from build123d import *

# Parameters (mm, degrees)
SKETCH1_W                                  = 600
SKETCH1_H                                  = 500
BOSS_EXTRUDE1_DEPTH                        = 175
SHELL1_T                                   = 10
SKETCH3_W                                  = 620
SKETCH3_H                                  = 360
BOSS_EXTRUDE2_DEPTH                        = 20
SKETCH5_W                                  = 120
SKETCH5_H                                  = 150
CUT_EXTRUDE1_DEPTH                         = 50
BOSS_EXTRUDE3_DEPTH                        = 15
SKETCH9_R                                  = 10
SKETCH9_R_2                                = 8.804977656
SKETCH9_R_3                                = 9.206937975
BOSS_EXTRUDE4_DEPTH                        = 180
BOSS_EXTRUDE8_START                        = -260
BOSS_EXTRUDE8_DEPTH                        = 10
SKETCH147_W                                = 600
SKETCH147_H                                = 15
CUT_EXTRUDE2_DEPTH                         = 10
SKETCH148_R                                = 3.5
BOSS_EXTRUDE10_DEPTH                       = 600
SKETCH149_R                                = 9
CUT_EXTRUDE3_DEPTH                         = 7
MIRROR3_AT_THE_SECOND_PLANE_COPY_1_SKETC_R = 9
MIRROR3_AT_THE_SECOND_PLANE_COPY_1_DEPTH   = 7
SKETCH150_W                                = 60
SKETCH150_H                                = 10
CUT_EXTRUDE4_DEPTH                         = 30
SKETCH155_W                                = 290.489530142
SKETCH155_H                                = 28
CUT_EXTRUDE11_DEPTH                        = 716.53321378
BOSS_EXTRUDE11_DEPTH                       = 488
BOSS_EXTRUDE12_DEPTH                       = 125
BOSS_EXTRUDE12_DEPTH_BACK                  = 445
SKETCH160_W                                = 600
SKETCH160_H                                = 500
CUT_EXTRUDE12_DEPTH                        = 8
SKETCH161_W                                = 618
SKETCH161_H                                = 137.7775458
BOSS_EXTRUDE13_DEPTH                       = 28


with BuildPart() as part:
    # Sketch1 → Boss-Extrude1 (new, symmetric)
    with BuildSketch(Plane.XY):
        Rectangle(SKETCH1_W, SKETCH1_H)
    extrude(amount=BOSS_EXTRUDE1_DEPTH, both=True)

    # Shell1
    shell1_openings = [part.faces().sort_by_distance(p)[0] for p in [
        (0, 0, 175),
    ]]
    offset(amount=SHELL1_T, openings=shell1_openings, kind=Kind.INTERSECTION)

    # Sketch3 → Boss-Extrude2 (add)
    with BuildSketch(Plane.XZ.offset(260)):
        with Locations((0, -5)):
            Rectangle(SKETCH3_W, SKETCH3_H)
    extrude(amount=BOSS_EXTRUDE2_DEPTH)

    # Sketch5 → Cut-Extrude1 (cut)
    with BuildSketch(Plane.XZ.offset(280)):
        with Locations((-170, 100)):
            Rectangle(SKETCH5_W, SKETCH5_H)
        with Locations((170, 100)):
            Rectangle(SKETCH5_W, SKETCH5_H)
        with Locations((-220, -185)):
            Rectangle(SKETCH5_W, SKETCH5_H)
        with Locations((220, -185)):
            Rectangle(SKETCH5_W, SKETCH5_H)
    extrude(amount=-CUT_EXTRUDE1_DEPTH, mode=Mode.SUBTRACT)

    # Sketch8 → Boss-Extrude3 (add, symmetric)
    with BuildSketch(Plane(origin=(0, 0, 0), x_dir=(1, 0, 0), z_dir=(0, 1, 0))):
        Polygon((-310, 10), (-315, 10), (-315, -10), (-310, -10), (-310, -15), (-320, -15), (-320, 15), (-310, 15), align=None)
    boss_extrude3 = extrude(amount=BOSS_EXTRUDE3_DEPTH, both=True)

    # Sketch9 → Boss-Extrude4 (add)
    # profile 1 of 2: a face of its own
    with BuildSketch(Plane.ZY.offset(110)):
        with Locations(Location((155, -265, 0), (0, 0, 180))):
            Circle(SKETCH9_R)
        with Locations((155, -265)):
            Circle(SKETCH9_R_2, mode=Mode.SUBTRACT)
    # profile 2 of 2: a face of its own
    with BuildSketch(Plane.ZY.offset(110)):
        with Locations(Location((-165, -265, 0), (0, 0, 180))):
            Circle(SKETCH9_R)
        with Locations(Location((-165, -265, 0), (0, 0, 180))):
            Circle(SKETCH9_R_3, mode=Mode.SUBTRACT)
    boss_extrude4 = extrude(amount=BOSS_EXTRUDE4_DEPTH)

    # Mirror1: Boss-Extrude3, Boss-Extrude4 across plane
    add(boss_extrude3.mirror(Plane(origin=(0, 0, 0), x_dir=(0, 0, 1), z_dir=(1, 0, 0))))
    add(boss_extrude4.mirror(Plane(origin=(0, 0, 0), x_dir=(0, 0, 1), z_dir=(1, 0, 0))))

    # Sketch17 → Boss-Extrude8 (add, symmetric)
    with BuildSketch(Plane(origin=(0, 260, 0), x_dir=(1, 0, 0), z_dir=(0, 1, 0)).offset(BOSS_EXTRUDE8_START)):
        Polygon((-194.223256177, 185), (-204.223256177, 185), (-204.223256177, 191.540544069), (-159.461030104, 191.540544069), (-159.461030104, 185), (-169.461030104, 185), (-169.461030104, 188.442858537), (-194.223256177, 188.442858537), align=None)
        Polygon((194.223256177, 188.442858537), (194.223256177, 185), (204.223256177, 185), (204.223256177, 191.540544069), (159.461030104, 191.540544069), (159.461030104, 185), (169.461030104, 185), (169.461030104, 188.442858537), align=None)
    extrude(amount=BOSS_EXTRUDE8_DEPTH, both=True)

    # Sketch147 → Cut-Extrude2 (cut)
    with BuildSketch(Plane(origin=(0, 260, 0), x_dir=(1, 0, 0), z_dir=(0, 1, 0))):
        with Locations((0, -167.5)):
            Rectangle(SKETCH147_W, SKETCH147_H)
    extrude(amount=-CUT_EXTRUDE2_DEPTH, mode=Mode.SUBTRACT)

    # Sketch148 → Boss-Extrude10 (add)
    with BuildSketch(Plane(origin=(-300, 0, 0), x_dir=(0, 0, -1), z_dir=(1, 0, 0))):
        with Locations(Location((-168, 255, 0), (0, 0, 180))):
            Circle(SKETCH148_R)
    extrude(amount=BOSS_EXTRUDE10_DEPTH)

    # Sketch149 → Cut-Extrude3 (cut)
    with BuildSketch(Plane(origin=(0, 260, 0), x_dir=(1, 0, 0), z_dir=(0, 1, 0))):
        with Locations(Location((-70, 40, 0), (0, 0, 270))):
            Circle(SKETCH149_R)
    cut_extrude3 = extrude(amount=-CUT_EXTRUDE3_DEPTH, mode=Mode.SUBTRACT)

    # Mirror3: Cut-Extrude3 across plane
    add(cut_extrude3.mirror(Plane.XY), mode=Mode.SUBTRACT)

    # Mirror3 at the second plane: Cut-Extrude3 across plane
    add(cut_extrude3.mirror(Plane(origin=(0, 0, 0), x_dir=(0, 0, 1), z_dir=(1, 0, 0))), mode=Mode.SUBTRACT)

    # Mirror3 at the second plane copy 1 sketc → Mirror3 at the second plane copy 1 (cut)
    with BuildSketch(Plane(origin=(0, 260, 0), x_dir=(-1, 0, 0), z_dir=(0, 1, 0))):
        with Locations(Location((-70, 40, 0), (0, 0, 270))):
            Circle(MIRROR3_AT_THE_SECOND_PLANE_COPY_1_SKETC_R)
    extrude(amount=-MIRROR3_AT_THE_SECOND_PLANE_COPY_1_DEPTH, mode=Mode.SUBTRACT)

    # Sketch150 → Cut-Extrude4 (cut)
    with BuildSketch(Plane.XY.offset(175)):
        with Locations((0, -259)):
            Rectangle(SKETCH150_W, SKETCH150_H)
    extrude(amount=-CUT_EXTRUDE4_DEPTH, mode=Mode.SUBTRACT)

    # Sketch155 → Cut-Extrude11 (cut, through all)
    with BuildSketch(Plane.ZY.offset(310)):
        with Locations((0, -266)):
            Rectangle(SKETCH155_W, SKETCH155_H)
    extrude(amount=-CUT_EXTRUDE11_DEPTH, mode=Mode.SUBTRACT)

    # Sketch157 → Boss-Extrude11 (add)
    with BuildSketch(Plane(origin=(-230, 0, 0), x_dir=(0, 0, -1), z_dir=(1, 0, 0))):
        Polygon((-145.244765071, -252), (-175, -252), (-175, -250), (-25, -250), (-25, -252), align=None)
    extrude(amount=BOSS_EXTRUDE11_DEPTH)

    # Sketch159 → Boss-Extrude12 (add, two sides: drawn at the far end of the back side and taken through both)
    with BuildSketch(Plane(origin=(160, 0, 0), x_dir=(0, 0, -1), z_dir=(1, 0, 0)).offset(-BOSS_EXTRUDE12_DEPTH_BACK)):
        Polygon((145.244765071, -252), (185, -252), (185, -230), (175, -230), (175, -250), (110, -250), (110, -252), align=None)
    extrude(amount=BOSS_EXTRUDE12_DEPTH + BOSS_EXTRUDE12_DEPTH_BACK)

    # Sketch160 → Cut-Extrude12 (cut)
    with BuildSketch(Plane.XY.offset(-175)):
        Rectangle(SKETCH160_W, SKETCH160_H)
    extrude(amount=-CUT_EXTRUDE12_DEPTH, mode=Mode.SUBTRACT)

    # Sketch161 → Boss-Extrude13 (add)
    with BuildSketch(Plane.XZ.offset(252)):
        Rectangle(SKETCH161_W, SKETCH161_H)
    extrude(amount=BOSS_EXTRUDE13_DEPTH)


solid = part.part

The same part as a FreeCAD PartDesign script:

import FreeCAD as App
import Part
import Sketcher


def faces_at(feature, points):
    """Names of the faces that lie closest to the given points."""
    faces = feature.Shape.Faces
    near = lambda p: min(range(len(faces)), key=lambda i: faces[i].distToShape(Part.Vertex(*p))[0])
    return sorted({f"Face{near(p) + 1}" for p in points})

doc = App.newDocument("Part")
params = doc.addObject("Spreadsheet::Sheet", "Params")
for row, (alias, value) in enumerate([
    ("sketch1_width", "600 mm"),
    ("sketch1_height", "500 mm"),
    ("pad1_length", "350 mm"),
    ("thickness_wall", "10 mm"),
    ("sketch2_width", "620 mm"),
    ("sketch2_height", "360 mm"),
    ("pad2_length", "20 mm"),
    ("sketch3_width", "120 mm"),
    ("sketch3_height", "150 mm"),
    ("pocket1_length", "50 mm"),
    ("sketch4_width", "5 mm"),
    ("sketch4_width2", "10 mm"),
    ("sketch4_height", "30 mm"),
    ("pad3_length", "30 mm"),
    ("sketch5_diameter", "20 mm"),
    ("pad4_length", "180 mm"),
    ("sketch6_width", "10 mm"),
    ("pad5_length", "20 mm"),
    ("sketch7_width", "600 mm"),
    ("sketch7_height", "15 mm"),
    ("pocket2_length", "10 mm"),
    ("sketch8_diameter", "7 mm"),
    ("pad6_length", "600 mm"),
    ("sketch9_diameter", "18 mm"),
    ("pocket3_length", "7 mm"),
    ("sketch10_diameter", "18 mm"),
    ("pocket4_length", "7 mm"),
    ("sketch11_width", "60 mm"),
    ("sketch11_height", "10 mm"),
    ("pocket5_length", "30 mm"),
    ("sketch12_width", "28 mm"),
    ("sketch13_width", "2 mm"),
    ("sketch13_height", "150 mm"),
    ("pad7_length", "488 mm"),
    ("sketch14_width", "22 mm"),
    ("sketch14_width2", "20 mm"),
    ("sketch14_height", "10 mm"),
    ("sketch14_height2", "65 mm"),
    ("pad8_length", "125 mm"),
    ("pad8_length2", "445 mm"),
    ("sketch15_width", "600 mm"),
    ("sketch15_height", "500 mm"),
    ("pocket7_length", "8 mm"),
    ("sketch16_width", "618 mm"),
    ("pad9_length", "28 mm"),
], start=1):
    params.set(f"A{row}", alias)
    params.set(f"B{row}", "=" + value)
    params.setAlias(f"B{row}", alias)

body = doc.addObject("PartDesign::Body", "Body")

# Sketch on XY plane
sketch1 = doc.addObject("Sketcher::SketchObject", "Sketch")
body.addObject(sketch1)
sketch1.AttachmentSupport = (doc.XY_Plane, [""])
sketch1.MapMode = "FlatFace"
sketch1.addGeometry(Part.LineSegment(App.Vector(-300, 250, 0), App.Vector(-300, -250, 0)), False)
sketch1.addGeometry(Part.LineSegment(App.Vector(-300, -250, 0), App.Vector(300, -250, 0)), False)
sketch1.addGeometry(Part.LineSegment(App.Vector(300, -250, 0), App.Vector(300, 250, 0)), False)
sketch1.addGeometry(Part.LineSegment(App.Vector(300, 250, 0), App.Vector(-300, 250, 0)), False)
sketch1.addConstraint(Sketcher.Constraint("Coincident", 0, 2, 1, 1))
sketch1.addConstraint(Sketcher.Constraint("Coincident", 1, 2, 2, 1))
sketch1.addConstraint(Sketcher.Constraint("Coincident", 2, 2, 3, 1))
sketch1.addConstraint(Sketcher.Constraint("Coincident", 3, 2, 0, 1))
sketch1.addConstraint(Sketcher.Constraint("Vertical", 0))
sketch1.addConstraint(Sketcher.Constraint("Horizontal", 1))
sketch1.addConstraint(Sketcher.Constraint("Vertical", 2))
sketch1.addConstraint(Sketcher.Constraint("Horizontal", 3))
sketch1.addConstraint(Sketcher.Constraint("Symmetric", 0, 2, 2, 2, -1, 1))
sketch1.addConstraint(Sketcher.Constraint("DistanceX", 1, 1, 1, 2, 600.0))
sketch1.addConstraint(Sketcher.Constraint("DistanceY", 0, 2, 0, 1, 500.0))
sketch1.setExpression("Constraints[9]", "Params.sketch1_width")
sketch1.setExpression("Constraints[10]", "Params.sketch1_height")
pad1 = doc.addObject("PartDesign::Pad", "Pad")
body.addObject(pad1)
pad1.Profile = sketch1
pad1.setExpression("Length", "Params.pad1_length")
pad1.Midplane = True
doc.recompute()

thickness = doc.addObject("PartDesign::Thickness", "Thickness")
body.addObject(thickness)
thickness.Base = (pad1, faces_at(pad1, [(0, 0, 175)]))
thickness.setExpression("Value", "Params.thickness_wall")
thickness.Reversed = False
thickness.Join = "Intersection"

# Sketch on XZ plane
sketch2 = doc.addObject("Sketcher::SketchObject", "Sketch001")
body.addObject(sketch2)
sketch2.AttachmentSupport = (doc.XZ_Plane, [""])
sketch2.MapMode = "FlatFace"
sketch2.AttachmentOffset = App.Placement(App.Vector(0, 0, 260), App.Rotation())
sketch2.addGeometry(Part.LineSegment(App.Vector(-310, 175, 0), App.Vector(-310, -185, 0)), False)
sketch2.addGeometry(Part.LineSegment(App.Vector(-310, -185, 0), App.Vector(310, -185, 0)), False)
sketch2.addGeometry(Part.LineSegment(App.Vector(310, -185, 0), App.Vector(310, 175, 0)), False)
sketch2.addGeometry(Part.LineSegment(App.Vector(310, 175, 0), App.Vector(-310, 175, 0)), False)
sketch2.addConstraint(Sketcher.Constraint("Coincident", 0, 2, 1, 1))
sketch2.addConstraint(Sketcher.Constraint("Coincident", 1, 2, 2, 1))
sketch2.addConstraint(Sketcher.Constraint("Coincident", 2, 2, 3, 1))
sketch2.addConstraint(Sketcher.Constraint("Coincident", 3, 2, 0, 1))
sketch2.addConstraint(Sketcher.Constraint("Vertical", 0))
sketch2.addConstraint(Sketcher.Constraint("Horizontal", 1))
sketch2.addConstraint(Sketcher.Constraint("Vertical", 2))
sketch2.addConstraint(Sketcher.Constraint("Horizontal", 3))
sketch2.addConstraint(Sketcher.Constraint("DistanceX", 1, 1, 1, 2, 620.0))
sketch2.addConstraint(Sketcher.Constraint("DistanceY", 0, 2, 0, 1, 360.0))
sketch2.addConstraint(Sketcher.Constraint("DistanceX", 0, 2, -1, 1, 310.0))
sketch2.addConstraint(Sketcher.Constraint("DistanceY", 0, 2, -1, 1, 185.0))
sketch2.setExpression("Constraints[8]", "Params.sketch2_width")
sketch2.setExpression("Constraints[9]", "Params.sketch2_height")
pad2 = doc.addObject("PartDesign::Pad", "Pad001")
body.addObject(pad2)
pad2.Profile = sketch2
pad2.setExpression("Length", "Params.pad2_length")

# Sketch on XZ plane
sketch3 = doc.addObject("Sketcher::SketchObject", "Sketch002")
body.addObject(sketch3)
sketch3.AttachmentSupport = (doc.XZ_Plane, [""])
sketch3.MapMode = "FlatFace"
sketch3.AttachmentOffset = App.Placement(App.Vector(0, 0, 280), App.Rotation())
sketch3.addGeometry(Part.LineSegment(App.Vector(-230, 175, 0), App.Vector(-230, 25, 0)), False)
sketch3.addGeometry(Part.LineSegment(App.Vector(-230, 25, 0), App.Vector(-110, 25, 0)), False)
sketch3.addGeometry(Part.LineSegment(App.Vector(-110, 25, 0), App.Vector(-110, 175, 0)), False)
sketch3.addGeometry(Part.LineSegment(App.Vector(-110, 175, 0), App.Vector(-230, 175, 0)), False)
sketch3.addGeometry(Part.LineSegment(App.Vector(110, 175, 0), App.Vector(110, 25, 0)), False)
sketch3.addGeometry(Part.LineSegment(App.Vector(110, 25, 0), App.Vector(230, 25, 0)), False)
sketch3.addGeometry(Part.LineSegment(App.Vector(230, 25, 0), App.Vector(230, 175, 0)), False)
sketch3.addGeometry(Part.LineSegment(App.Vector(230, 175, 0), App.Vector(110, 175, 0)), False)
sketch3.addGeometry(Part.LineSegment(App.Vector(-280, -110, 0), App.Vector(-280, -260, 0)), False)
sketch3.addGeometry(Part.LineSegment(App.Vector(-280, -260, 0), App.Vector(-160, -260, 0)), False)
sketch3.addGeometry(Part.LineSegment(App.Vector(-160, -260, 0), App.Vector(-160, -110, 0)), False)
sketch3.addGeometry(Part.LineSegment(App.Vector(-160, -110, 0), App.Vector(-280, -110, 0)), False)
sketch3.addGeometry(Part.LineSegment(App.Vector(160, -110, 0), App.Vector(160, -260, 0)), False)
sketch3.addGeometry(Part.LineSegment(App.Vector(160, -260, 0), App.Vector(280, -260, 0)), False)
sketch3.addGeometry(Part.LineSegment(App.Vector(280, -260, 0), App.Vector(280, -110, 0)), False)
sketch3.addGeometry(Part.LineSegment(App.Vector(280, -110, 0), App.Vector(160, -110, 0)), False)
sketch3.addConstraint(Sketcher.Constraint("Coincident", 0, 2, 1, 1))
sketch3.addConstraint(Sketcher.Constraint("Coincident", 1, 2, 2, 1))
sketch3.addConstraint(Sketcher.Constraint("Coincident", 2, 2, 3, 1))
sketch3.addConstraint(Sketcher.Constraint("Coincident", 3, 2, 0, 1))
sketch3.addConstraint(Sketcher.Constraint("Coincident", 4, 2, 5, 1))
sketch3.addConstraint(Sketcher.Constraint("Coincident", 5, 2, 6, 1))
sketch3.addConstraint(Sketcher.Constraint("Coincident", 6, 2, 7, 1))
sketch3.addConstraint(Sketcher.Constraint("Coincident", 7, 2, 4, 1))
sketch3.addConstraint(Sketcher.Constraint("Coincident", 8, 2, 9, 1))
sketch3.addConstraint(Sketcher.Constraint("Coincident", 9, 2, 10, 1))
sketch3.addConstraint(Sketcher.Constraint("Coincident", 10, 2, 11, 1))
sketch3.addConstraint(Sketcher.Constraint("Coincident", 11, 2, 8, 1))
sketch3.addConstraint(Sketcher.Constraint("Coincident", 12, 2, 13, 1))
sketch3.addConstraint(Sketcher.Constraint("Coincident", 13, 2, 14, 1))
sketch3.addConstraint(Sketcher.Constraint("Coincident", 14, 2, 15, 1))
sketch3.addConstraint(Sketcher.Constraint("Coincident", 15, 2, 12, 1))
sketch3.addConstraint(Sketcher.Constraint("Vertical", 0))
sketch3.addConstraint(Sketcher.Constraint("Horizontal", 1))
sketch3.addConstraint(Sketcher.Constraint("Vertical", 2))
sketch3.addConstraint(Sketcher.Constraint("Horizontal", 3))
sketch3.addConstraint(Sketcher.Constraint("Vertical", 4))
sketch3.addConstraint(Sketcher.Constraint("Horizontal", 5))
sketch3.addConstraint(Sketcher.Constraint("Vertical", 6))
sketch3.addConstraint(Sketcher.Constraint("Horizontal", 7))
sketch3.addConstraint(Sketcher.Constraint("Vertical", 8))
sketch3.addConstraint(Sketcher.Constraint("Horizontal", 9))
sketch3.addConstraint(Sketcher.Constraint("Vertical", 10))
sketch3.addConstraint(Sketcher.Constraint("Horizontal", 11))
sketch3.addConstraint(Sketcher.Constraint("Vertical", 12))
sketch3.addConstraint(Sketcher.Constraint("Horizontal", 13))
sketch3.addConstraint(Sketcher.Constraint("Vertical", 14))
sketch3.addConstraint(Sketcher.Constraint("Horizontal", 15))
sketch3.addConstraint(Sketcher.Constraint("Symmetric", 1, 2, 4, 2, -2))
sketch3.addConstraint(Sketcher.Constraint("Symmetric", 3, 2, 6, 2, -2))
sketch3.addConstraint(Sketcher.Constraint("Symmetric", 9, 2, 12, 2, -2))
sketch3.addConstraint(Sketcher.Constraint("Symmetric", 11, 2, 14, 2, -2))
sketch3.addConstraint(Sketcher.Constraint("Equal", 7, 9))
sketch3.addConstraint(Sketcher.Constraint("Equal", 6, 8))
sketch3.addConstraint(Sketcher.Constraint("DistanceX", 1, 1, 1, 2, 120.0))
sketch3.addConstraint(Sketcher.Constraint("DistanceY", 0, 2, 0, 1, 150.0))
sketch3.addConstraint(Sketcher.Constraint("DistanceX", 0, 2, -1, 1, 230.0))
sketch3.addConstraint(Sketcher.Constraint("DistanceY", -1, 1, 0, 2, 25.0))
sketch3.addConstraint(Sketcher.Constraint("DistanceX", 8, 2, -1, 1, 280.0))
sketch3.addConstraint(Sketcher.Constraint("DistanceY", 8, 2, -1, 1, 260.0))
sketch3.setExpression("Constraints[38]", "Params.sketch3_width")
sketch3.setExpression("Constraints[39]", "Params.sketch3_height")
pocket1 = doc.addObject("PartDesign::Pocket", "Pocket")
body.addObject(pocket1)
pocket1.Profile = sketch3
pocket1.setExpression("Length", "Params.pocket1_length")

# Sketch on XZ plane
sketch4 = doc.addObject("Sketcher::SketchObject", "Sketch003")
body.addObject(sketch4)
sketch4.AttachmentSupport = (doc.XZ_Plane, [""])
sketch4.MapMode = "FlatFace"
sketch4.addGeometry(Part.LineSegment(App.Vector(-315, -10, 0), App.Vector(-310, -10, 0)), False)
sketch4.addGeometry(Part.LineSegment(App.Vector(-310, -10, 0), App.Vector(-310, -15, 0)), False)
sketch4.addGeometry(Part.LineSegment(App.Vector(-310, -15, 0), App.Vector(-320, -15, 0)), False)
sketch4.addGeometry(Part.LineSegment(App.Vector(-320, -15, 0), App.Vector(-320, 15, 0)), False)
sketch4.addGeometry(Part.LineSegment(App.Vector(-320, 15, 0), App.Vector(-310, 15, 0)), False)
sketch4.addGeometry(Part.LineSegment(App.Vector(-310, 15, 0), App.Vector(-310, 10, 0)), False)
sketch4.addGeometry(Part.LineSegment(App.Vector(-310, 10, 0), App.Vector(-315, 10, 0)), False)
sketch4.addGeometry(Part.LineSegment(App.Vector(-315, 10, 0), App.Vector(-315, -10, 0)), False)
sketch4.addConstraint(Sketcher.Constraint("Coincident", 0, 2, 1, 1))
sketch4.addConstraint(Sketcher.Constraint("Coincident", 1, 2, 2, 1))
sketch4.addConstraint(Sketcher.Constraint("Coincident", 2, 2, 3, 1))
sketch4.addConstraint(Sketcher.Constraint("Coincident", 3, 2, 4, 1))
sketch4.addConstraint(Sketcher.Constraint("Coincident", 4, 2, 5, 1))
sketch4.addConstraint(Sketcher.Constraint("Coincident", 5, 2, 6, 1))
sketch4.addConstraint(Sketcher.Constraint("Coincident", 6, 2, 7, 1))
sketch4.addConstraint(Sketcher.Constraint("Coincident", 7, 2, 0, 1))
sketch4.addConstraint(Sketcher.Constraint("Horizontal", 0))
sketch4.addConstraint(Sketcher.Constraint("Vertical", 1))
sketch4.addConstraint(Sketcher.Constraint("Horizontal", 2))
sketch4.addConstraint(Sketcher.Constraint("Vertical", 3))
sketch4.addConstraint(Sketcher.Constraint("Horizontal", 4))
sketch4.addConstraint(Sketcher.Constraint("Vertical", 5))
sketch4.addConstraint(Sketcher.Constraint("Horizontal", 6))
sketch4.addConstraint(Sketcher.Constraint("Vertical", 7))
sketch4.addConstraint(Sketcher.Constraint("Symmetric", 1, 2, 4, 2, -1))
sketch4.addConstraint(Sketcher.Constraint("Equal", 6, 1))
sketch4.addConstraint(Sketcher.Constraint("Equal", 1, 5))
sketch4.addConstraint(Sketcher.Constraint("DistanceX", 0, 1, 0, 2, 5.0))
sketch4.addConstraint(Sketcher.Constraint("DistanceX", 2, 2, 2, 1, 10.0))
sketch4.addConstraint(Sketcher.Constraint("DistanceY", 3, 1, 3, 2, 30.0))
sketch4.addConstraint(Sketcher.Constraint("DistanceX", 0, 2, -1, 1, 310.0))
sketch4.setExpression("Constraints[19]", "Params.sketch4_width")
sketch4.setExpression("Constraints[20]", "Params.sketch4_width2")
sketch4.setExpression("Constraints[21]", "Params.sketch4_height")
pad3 = doc.addObject("PartDesign::Pad", "Pad002")
body.addObject(pad3)
pad3.Profile = sketch4
pad3.setExpression("Length", "Params.pad3_length")
pad3.Midplane = True

# Sketch on YZ plane
sketch5 = doc.addObject("Sketcher::SketchObject", "Sketch004")
body.addObject(sketch5)
sketch5.AttachmentSupport = (doc.YZ_Plane, [""])
sketch5.MapMode = "FlatFace"
sketch5.AttachmentOffset = App.Placement(App.Vector(0, 0, -110), App.Rotation())
sketch5.addGeometry(Part.Circle(App.Vector(-265, 155, 0), App.Vector(0, 0, 1), 10), False)
sketch5.addGeometry(Part.Circle(App.Vector(-265, 155, 0), App.Vector(0, 0, 1), 9), False)
sketch5.addGeometry(Part.Circle(App.Vector(-265, -165, 0), App.Vector(0, 0, 1), 10), False)
sketch5.addGeometry(Part.Circle(App.Vector(-265, -165, 0), App.Vector(0, 0, 1), 9), False)
sketch5.addConstraint(Sketcher.Constraint("Coincident", 1, 3, 0, 3))
sketch5.addConstraint(Sketcher.Constraint("Coincident", 3, 3, 2, 3))
sketch5.addConstraint(Sketcher.Constraint("Equal", 0, 2))
sketch5.addConstraint(Sketcher.Constraint("Vertical", 1, 3, 2, 3))
sketch5.addConstraint(Sketcher.Constraint("Diameter", 0, 20.0))
sketch5.addConstraint(Sketcher.Constraint("DistanceX", 0, 3, -1, 1, 265.0))
sketch5.addConstraint(Sketcher.Constraint("DistanceY", -1, 1, 0, 3, 155.0))
sketch5.addConstraint(Sketcher.Constraint("DistanceY", 2, 3, -1, 1, 165.0))
sketch5.addConstraint(Sketcher.Constraint("Diameter", 1, 17.609955))
sketch5.addConstraint(Sketcher.Constraint("Diameter", 3, 18.413876))
sketch5.setExpression("Constraints[4]", "Params.sketch5_diameter")
pad4 = doc.addObject("PartDesign::Pad", "Pad003")
body.addObject(pad4)
pad4.Profile = sketch5
pad4.setExpression("Length", "Params.pad4_length")
pad4.Reversed = True
doc.recompute()

mirrored = doc.addObject("PartDesign::Mirrored", "Mirrored")
body.addObject(mirrored)
mirrored.Originals = [pad3, pad4]
mirrored.MirrorPlane = (doc.YZ_Plane, [""])
body.Tip = mirrored

# Sketch on XZ plane
sketch6 = doc.addObject("Sketcher::SketchObject", "Sketch005")
body.addObject(sketch6)
sketch6.AttachmentSupport = (doc.XZ_Plane, [""])
sketch6.MapMode = "FlatFace"
sketch6.addGeometry(Part.LineSegment(App.Vector(-204.2, -185, 0), App.Vector(-194.2, -185, 0)), False)
sketch6.addGeometry(Part.LineSegment(App.Vector(-194.2, -185, 0), App.Vector(-194.2, -188.4, 0)), False)
sketch6.addGeometry(Part.LineSegment(App.Vector(-194.2, -188.4, 0), App.Vector(-169.5, -188.4, 0)), False)
sketch6.addGeometry(Part.LineSegment(App.Vector(-169.5, -188.4, 0), App.Vector(-169.5, -185, 0)), False)
sketch6.addGeometry(Part.LineSegment(App.Vector(-169.5, -185, 0), App.Vector(-159.5, -185, 0)), False)
sketch6.addGeometry(Part.LineSegment(App.Vector(-159.5, -185, 0), App.Vector(-159.5, -191.5, 0)), False)
sketch6.addGeometry(Part.LineSegment(App.Vector(-159.5, -191.5, 0), App.Vector(-204.2, -191.5, 0)), False)
sketch6.addGeometry(Part.LineSegment(App.Vector(-204.2, -191.5, 0), App.Vector(-204.2, -185, 0)), False)
sketch6.addGeometry(Part.LineSegment(App.Vector(194.2, -188.4, 0), App.Vector(194.2, -185, 0)), False)
sketch6.addGeometry(Part.LineSegment(App.Vector(194.2, -185, 0), App.Vector(204.2, -185, 0)), False)
sketch6.addGeometry(Part.LineSegment(App.Vector(204.2, -185, 0), App.Vector(204.2, -191.5, 0)), False)
sketch6.addGeometry(Part.LineSegment(App.Vector(204.2, -191.5, 0), App.Vector(159.5, -191.5, 0)), False)
sketch6.addGeometry(Part.LineSegment(App.Vector(159.5, -191.5, 0), App.Vector(159.5, -185, 0)), False)
sketch6.addGeometry(Part.LineSegment(App.Vector(159.5, -185, 0), App.Vector(169.5, -185, 0)), False)
sketch6.addGeometry(Part.LineSegment(App.Vector(169.5, -185, 0), App.Vector(169.5, -188.4, 0)), False)
sketch6.addGeometry(Part.LineSegment(App.Vector(169.5, -188.4, 0), App.Vector(194.2, -188.4, 0)), False)
sketch6.addConstraint(Sketcher.Constraint("Coincident", 0, 2, 1, 1))
sketch6.addConstraint(Sketcher.Constraint("Coincident", 1, 2, 2, 1))
sketch6.addConstraint(Sketcher.Constraint("Coincident", 2, 2, 3, 1))
sketch6.addConstraint(Sketcher.Constraint("Coincident", 3, 2, 4, 1))
sketch6.addConstraint(Sketcher.Constraint("Coincident", 4, 2, 5, 1))
sketch6.addConstraint(Sketcher.Constraint("Coincident", 5, 2, 6, 1))
sketch6.addConstraint(Sketcher.Constraint("Coincident", 6, 2, 7, 1))
sketch6.addConstraint(Sketcher.Constraint("Coincident", 7, 2, 0, 1))
sketch6.addConstraint(Sketcher.Constraint("Coincident", 8, 2, 9, 1))
sketch6.addConstraint(Sketcher.Constraint("Coincident", 9, 2, 10, 1))
sketch6.addConstraint(Sketcher.Constraint("Coincident", 10, 2, 11, 1))
sketch6.addConstraint(Sketcher.Constraint("Coincident", 11, 2, 12, 1))
sketch6.addConstraint(Sketcher.Constraint("Coincident", 12, 2, 13, 1))
sketch6.addConstraint(Sketcher.Constraint("Coincident", 13, 2, 14, 1))
sketch6.addConstraint(Sketcher.Constraint("Coincident", 14, 2, 15, 1))
sketch6.addConstraint(Sketcher.Constraint("Coincident", 15, 2, 8, 1))
sketch6.addConstraint(Sketcher.Constraint("Horizontal", 0))
sketch6.addConstraint(Sketcher.Constraint("Vertical", 1))
sketch6.addConstraint(Sketcher.Constraint("Horizontal", 2))
sketch6.addConstraint(Sketcher.Constraint("Vertical", 3))
sketch6.addConstraint(Sketcher.Constraint("Horizontal", 4))
sketch6.addConstraint(Sketcher.Constraint("Vertical", 5))
sketch6.addConstraint(Sketcher.Constraint("Horizontal", 6))
sketch6.addConstraint(Sketcher.Constraint("Vertical", 7))
sketch6.addConstraint(Sketcher.Constraint("Vertical", 8))
sketch6.addConstraint(Sketcher.Constraint("Horizontal", 9))
sketch6.addConstraint(Sketcher.Constraint("Vertical", 10))
sketch6.addConstraint(Sketcher.Constraint("Horizontal", 11))
sketch6.addConstraint(Sketcher.Constraint("Vertical", 12))
sketch6.addConstraint(Sketcher.Constraint("Horizontal", 13))
sketch6.addConstraint(Sketcher.Constraint("Vertical", 14))
sketch6.addConstraint(Sketcher.Constraint("Horizontal", 15))
sketch6.addConstraint(Sketcher.Constraint("Symmetric", 0, 2, 8, 2, -2))
sketch6.addConstraint(Sketcher.Constraint("Symmetric", 6, 2, 10, 2, -2))
sketch6.addConstraint(Sketcher.Constraint("Symmetric", 4, 2, 12, 2, -2))
sketch6.addConstraint(Sketcher.Constraint("Symmetric", 2, 2, 14, 2, -2))
sketch6.addConstraint(Sketcher.Constraint("Horizontal", 0, 2, 3, 2))
sketch6.addConstraint(Sketcher.Constraint("Equal", 0, 4))
sketch6.addConstraint(Sketcher.Constraint("DistanceX", 0, 1, 0, 2, 10.0))
sketch6.addConstraint(Sketcher.Constraint("DistanceY", 0, 2, -1, 1, 185.0))
sketch6.addConstraint(Sketcher.Constraint("DistanceY", 1, 2, 1, 1, 3.442859))
sketch6.addConstraint(Sketcher.Constraint("DistanceX", 2, 1, 2, 2, 24.762226))
sketch6.addConstraint(Sketcher.Constraint("DistanceY", 5, 2, 5, 1, 6.540544))
sketch6.addConstraint(Sketcher.Constraint("DistanceX", 2, 2, -1, 1, 169.46103))
sketch6.setExpression("Constraints[38]", "Params.sketch6_width")
pad5 = doc.addObject("PartDesign::Pad", "Pad004")
body.addObject(pad5)
pad5.Profile = sketch6
pad5.setExpression("Length", "Params.pad5_length")
pad5.Midplane = True

# Sketch on XZ plane
sketch7 = doc.addObject("Sketcher::SketchObject", "Sketch006")
body.addObject(sketch7)
sketch7.AttachmentSupport = (doc.XZ_Plane, [""])
sketch7.MapMode = "FlatFace"
sketch7.AttachmentOffset = App.Placement(App.Vector(0, 0, -260), App.Rotation())
sketch7.addGeometry(Part.LineSegment(App.Vector(-300, 160, 0), App.Vector(-300, 175, 0)), False)
sketch7.addGeometry(Part.LineSegment(App.Vector(-300, 175, 0), App.Vector(300, 175, 0)), False)
sketch7.addGeometry(Part.LineSegment(App.Vector(300, 175, 0), App.Vector(300, 160, 0)), False)
sketch7.addGeometry(Part.LineSegment(App.Vector(300, 160, 0), App.Vector(-300, 160, 0)), False)
sketch7.addConstraint(Sketcher.Constraint("Coincident", 0, 2, 1, 1))
sketch7.addConstraint(Sketcher.Constraint("Coincident", 1, 2, 2, 1))
sketch7.addConstraint(Sketcher.Constraint("Coincident", 2, 2, 3, 1))
sketch7.addConstraint(Sketcher.Constraint("Coincident", 3, 2, 0, 1))
sketch7.addConstraint(Sketcher.Constraint("Vertical", 0))
sketch7.addConstraint(Sketcher.Constraint("Horizontal", 1))
sketch7.addConstraint(Sketcher.Constraint("Vertical", 2))
sketch7.addConstraint(Sketcher.Constraint("Horizontal", 3))
sketch7.addConstraint(Sketcher.Constraint("DistanceX", 1, 1, 1, 2, 600.0))
sketch7.addConstraint(Sketcher.Constraint("DistanceY", 0, 1, 0, 2, 15.0))
sketch7.addConstraint(Sketcher.Constraint("DistanceX", 0, 2, -1, 1, 300.0))
sketch7.addConstraint(Sketcher.Constraint("DistanceY", -1, 1, 0, 2, 175.0))
sketch7.setExpression("Constraints[8]", "Params.sketch7_width")
sketch7.setExpression("Constraints[9]", "Params.sketch7_height")
pocket2 = doc.addObject("PartDesign::Pocket", "Pocket001")
body.addObject(pocket2)
pocket2.Profile = sketch7
pocket2.setExpression("Length", "Params.pocket2_length")
pocket2.Reversed = True

# Sketch on YZ plane
sketch8 = doc.addObject("Sketcher::SketchObject", "Sketch007")
body.addObject(sketch8)
sketch8.AttachmentSupport = (doc.YZ_Plane, [""])
sketch8.MapMode = "FlatFace"
sketch8.AttachmentOffset = App.Placement(App.Vector(0, 0, -300), App.Rotation())
sketch8.addGeometry(Part.Circle(App.Vector(255, 168, 0), App.Vector(0, 0, 1), 3.5), False)
sketch8.addConstraint(Sketcher.Constraint("Diameter", 0, 7.0))
sketch8.addConstraint(Sketcher.Constraint("DistanceX", -1, 1, 0, 3, 255.0))
sketch8.addConstraint(Sketcher.Constraint("DistanceY", -1, 1, 0, 3, 168.0))
sketch8.setExpression("Constraints[0]", "Params.sketch8_diameter")
pad6 = doc.addObject("PartDesign::Pad", "Pad005")
body.addObject(pad6)
pad6.Profile = sketch8
pad6.setExpression("Length", "Params.pad6_length")

# Sketch on XZ plane
sketch9 = doc.addObject("Sketcher::SketchObject", "Sketch008")
body.addObject(sketch9)
sketch9.AttachmentSupport = (doc.XZ_Plane, [""])
sketch9.MapMode = "FlatFace"
sketch9.AttachmentOffset = App.Placement(App.Vector(0, 0, -260), App.Rotation())
sketch9.addGeometry(Part.Circle(App.Vector(-70, -40, 0), App.Vector(0, 0, 1), 9), False)
sketch9.addConstraint(Sketcher.Constraint("Diameter", 0, 18.0))
sketch9.addConstraint(Sketcher.Constraint("DistanceX", 0, 3, -1, 1, 70.0))
sketch9.addConstraint(Sketcher.Constraint("DistanceY", 0, 3, -1, 1, 40.0))
sketch9.setExpression("Constraints[0]", "Params.sketch9_diameter")
pocket3 = doc.addObject("PartDesign::Pocket", "Pocket002")
body.addObject(pocket3)
pocket3.Profile = sketch9
pocket3.setExpression("Length", "Params.pocket3_length")
pocket3.Reversed = True
doc.recompute()

mirrored2 = doc.addObject("PartDesign::Mirrored", "Mirrored001")
body.addObject(mirrored2)
mirrored2.Originals = [pocket3]
mirrored2.MirrorPlane = (doc.XY_Plane, [""])
body.Tip = mirrored2
doc.recompute()

mirrored3 = doc.addObject("PartDesign::Mirrored", "Mirrored002")
body.addObject(mirrored3)
mirrored3.Originals = [pocket3]
mirrored3.MirrorPlane = (doc.YZ_Plane, [""])
body.Tip = mirrored3

# Sketch on XZ plane
sketch10 = doc.addObject("Sketcher::SketchObject", "Sketch009")
body.addObject(sketch10)
sketch10.AttachmentSupport = (doc.XZ_Plane, [""])
sketch10.MapMode = "FlatFace"
sketch10.AttachmentOffset = App.Placement(App.Vector(0, 0, -260), App.Rotation())
sketch10.addGeometry(Part.Circle(App.Vector(70, 40, 0), App.Vector(0, 0, 1), 9), False)
sketch10.addConstraint(Sketcher.Constraint("Diameter", 0, 18.0))
sketch10.addConstraint(Sketcher.Constraint("DistanceX", -1, 1, 0, 3, 70.0))
sketch10.addConstraint(Sketcher.Constraint("DistanceY", -1, 1, 0, 3, 40.0))
sketch10.setExpression("Constraints[0]", "Params.sketch10_diameter")
pocket4 = doc.addObject("PartDesign::Pocket", "Pocket003")
body.addObject(pocket4)
pocket4.Profile = sketch10
pocket4.setExpression("Length", "Params.pocket4_length")
pocket4.Reversed = True

# Sketch on XY plane
sketch11 = doc.addObject("Sketcher::SketchObject", "Sketch010")
body.addObject(sketch11)
sketch11.AttachmentSupport = (doc.XY_Plane, [""])
sketch11.MapMode = "FlatFace"
sketch11.AttachmentOffset = App.Placement(App.Vector(0, 0, 175), App.Rotation())
sketch11.addGeometry(Part.LineSegment(App.Vector(-30, -254, 0), App.Vector(-30, -264, 0)), False)
sketch11.addGeometry(Part.LineSegment(App.Vector(-30, -264, 0), App.Vector(30, -264, 0)), False)
sketch11.addGeometry(Part.LineSegment(App.Vector(30, -264, 0), App.Vector(30, -254, 0)), False)
sketch11.addGeometry(Part.LineSegment(App.Vector(30, -254, 0), App.Vector(-30, -254, 0)), False)
sketch11.addConstraint(Sketcher.Constraint("Coincident", 0, 2, 1, 1))
sketch11.addConstraint(Sketcher.Constraint("Coincident", 1, 2, 2, 1))
sketch11.addConstraint(Sketcher.Constraint("Coincident", 2, 2, 3, 1))
sketch11.addConstraint(Sketcher.Constraint("Coincident", 3, 2, 0, 1))
sketch11.addConstraint(Sketcher.Constraint("Vertical", 0))
sketch11.addConstraint(Sketcher.Constraint("Horizontal", 1))
sketch11.addConstraint(Sketcher.Constraint("Vertical", 2))
sketch11.addConstraint(Sketcher.Constraint("Horizontal", 3))
sketch11.addConstraint(Sketcher.Constraint("DistanceX", 1, 1, 1, 2, 60.0))
sketch11.addConstraint(Sketcher.Constraint("DistanceY", 0, 2, 0, 1, 10.0))
sketch11.addConstraint(Sketcher.Constraint("DistanceX", 0, 2, -1, 1, 30.0))
sketch11.addConstraint(Sketcher.Constraint("DistanceY", 0, 2, -1, 1, 264.0))
sketch11.setExpression("Constraints[8]", "Params.sketch11_width")
sketch11.setExpression("Constraints[9]", "Params.sketch11_height")
pocket5 = doc.addObject("PartDesign::Pocket", "Pocket004")
body.addObject(pocket5)
pocket5.Profile = sketch11
pocket5.setExpression("Length", "Params.pocket5_length")

# Sketch on YZ plane
sketch12 = doc.addObject("Sketcher::SketchObject", "Sketch011")
body.addObject(sketch12)
sketch12.AttachmentSupport = (doc.YZ_Plane, [""])
sketch12.MapMode = "FlatFace"
sketch12.AttachmentOffset = App.Placement(App.Vector(0, 0, -310), App.Rotation())
sketch12.addGeometry(Part.LineSegment(App.Vector(-252, -145, 0), App.Vector(-280, -145, 0)), False)
sketch12.addGeometry(Part.LineSegment(App.Vector(-280, -145, 0), App.Vector(-280, 145, 0)), False)
sketch12.addGeometry(Part.LineSegment(App.Vector(-280, 145, 0), App.Vector(-252, 145, 0)), False)
sketch12.addGeometry(Part.LineSegment(App.Vector(-252, 145, 0), App.Vector(-252, -145, 0)), False)
sketch12.addConstraint(Sketcher.Constraint("Coincident", 0, 2, 1, 1))
sketch12.addConstraint(Sketcher.Constraint("Coincident", 1, 2, 2, 1))
sketch12.addConstraint(Sketcher.Constraint("Coincident", 2, 2, 3, 1))
sketch12.addConstraint(Sketcher.Constraint("Coincident", 3, 2, 0, 1))
sketch12.addConstraint(Sketcher.Constraint("Horizontal", 0))
sketch12.addConstraint(Sketcher.Constraint("Vertical", 1))
sketch12.addConstraint(Sketcher.Constraint("Horizontal", 2))
sketch12.addConstraint(Sketcher.Constraint("Vertical", 3))
sketch12.addConstraint(Sketcher.Constraint("DistanceX", 0, 2, 0, 1, 28.0))
sketch12.addConstraint(Sketcher.Constraint("DistanceX", 0, 2, -1, 1, 280.0))
sketch12.addConstraint(Sketcher.Constraint("DistanceY", 1, 1, 1, 2, 290.48953))
sketch12.addConstraint(Sketcher.Constraint("DistanceY", 0, 2, -1, 1, 145.244765))
sketch12.setExpression("Constraints[8]", "Params.sketch12_width")
pocket6 = doc.addObject("PartDesign::Pocket", "Pocket005")
body.addObject(pocket6)
pocket6.Profile = sketch12
pocket6.Type = "ThroughAll"
pocket6.Reversed = True

# Sketch on YZ plane
sketch13 = doc.addObject("Sketcher::SketchObject", "Sketch012")
body.addObject(sketch13)
sketch13.AttachmentSupport = (doc.YZ_Plane, [""])
sketch13.MapMode = "FlatFace"
sketch13.AttachmentOffset = App.Placement(App.Vector(0, 0, -230), App.Rotation())
sketch13.addGeometry(Part.LineSegment(App.Vector(-252, 175, 0), App.Vector(-252, 25, 0)), False)
sketch13.addGeometry(Part.LineSegment(App.Vector(-252, 25, 0), App.Vector(-250, 25, 0)), False)
sketch13.addGeometry(Part.LineSegment(App.Vector(-250, 25, 0), App.Vector(-250, 175, 0)), False)
sketch13.addGeometry(Part.LineSegment(App.Vector(-250, 175, 0), App.Vector(-252, 175, 0)), False)
sketch13.addConstraint(Sketcher.Constraint("Coincident", 0, 2, 1, 1))
sketch13.addConstraint(Sketcher.Constraint("Coincident", 1, 2, 2, 1))
sketch13.addConstraint(Sketcher.Constraint("Coincident", 2, 2, 3, 1))
sketch13.addConstraint(Sketcher.Constraint("Coincident", 3, 2, 0, 1))
sketch13.addConstraint(Sketcher.Constraint("Vertical", 0))
sketch13.addConstraint(Sketcher.Constraint("Horizontal", 1))
sketch13.addConstraint(Sketcher.Constraint("Vertical", 2))
sketch13.addConstraint(Sketcher.Constraint("Horizontal", 3))
sketch13.addConstraint(Sketcher.Constraint("DistanceX", 1, 1, 1, 2, 2.0))
sketch13.addConstraint(Sketcher.Constraint("DistanceY", 0, 2, 0, 1, 150.0))
sketch13.addConstraint(Sketcher.Constraint("DistanceX", 0, 2, -1, 1, 252.0))
sketch13.addConstraint(Sketcher.Constraint("DistanceY", -1, 1, 0, 2, 25.0))
sketch13.setExpression("Constraints[8]", "Params.sketch13_width")
sketch13.setExpression("Constraints[9]", "Params.sketch13_height")
pad7 = doc.addObject("PartDesign::Pad", "Pad006")
body.addObject(pad7)
pad7.Profile = sketch13
pad7.setExpression("Length", "Params.pad7_length")

# Sketch on YZ plane
sketch14 = doc.addObject("Sketcher::SketchObject", "Sketch013")
body.addObject(sketch14)
sketch14.AttachmentSupport = (doc.YZ_Plane, [""])
sketch14.MapMode = "FlatFace"
sketch14.AttachmentOffset = App.Placement(App.Vector(0, 0, 160), App.Rotation())
sketch14.addGeometry(Part.LineSegment(App.Vector(-252, -185, 0), App.Vector(-230, -185, 0)), False)
sketch14.addGeometry(Part.LineSegment(App.Vector(-230, -185, 0), App.Vector(-230, -175, 0)), False)
sketch14.addGeometry(Part.LineSegment(App.Vector(-230, -175, 0), App.Vector(-250, -175, 0)), False)
sketch14.addGeometry(Part.LineSegment(App.Vector(-250, -175, 0), App.Vector(-250, -110, 0)), False)
sketch14.addGeometry(Part.LineSegment(App.Vector(-250, -110, 0), App.Vector(-252, -110, 0)), False)
sketch14.addGeometry(Part.LineSegment(App.Vector(-252, -110, 0), App.Vector(-252, -185, 0)), False)
sketch14.addConstraint(Sketcher.Constraint("Coincident", 0, 2, 1, 1))
sketch14.addConstraint(Sketcher.Constraint("Coincident", 1, 2, 2, 1))
sketch14.addConstraint(Sketcher.Constraint("Coincident", 2, 2, 3, 1))
sketch14.addConstraint(Sketcher.Constraint("Coincident", 3, 2, 4, 1))
sketch14.addConstraint(Sketcher.Constraint("Coincident", 4, 2, 5, 1))
sketch14.addConstraint(Sketcher.Constraint("Coincident", 5, 2, 0, 1))
sketch14.addConstraint(Sketcher.Constraint("Horizontal", 0))
sketch14.addConstraint(Sketcher.Constraint("Vertical", 1))
sketch14.addConstraint(Sketcher.Constraint("Horizontal", 2))
sketch14.addConstraint(Sketcher.Constraint("Vertical", 3))
sketch14.addConstraint(Sketcher.Constraint("Horizontal", 4))
sketch14.addConstraint(Sketcher.Constraint("Vertical", 5))
sketch14.addConstraint(Sketcher.Constraint("DistanceX", 0, 1, 0, 2, 22.0))
sketch14.addConstraint(Sketcher.Constraint("DistanceX", 2, 2, 2, 1, 20.0))
sketch14.addConstraint(Sketcher.Constraint("DistanceY", 1, 1, 1, 2, 10.0))
sketch14.addConstraint(Sketcher.Constraint("DistanceY", 3, 1, 3, 2, 65.0))
sketch14.addConstraint(Sketcher.Constraint("DistanceX", 0, 2, -1, 1, 230.0))
sketch14.addConstraint(Sketcher.Constraint("DistanceY", 0, 2, -1, 1, 185.0))
sketch14.setExpression("Constraints[12]", "Params.sketch14_width")
sketch14.setExpression("Constraints[13]", "Params.sketch14_width2")
sketch14.setExpression("Constraints[14]", "Params.sketch14_height")
sketch14.setExpression("Constraints[15]", "Params.sketch14_height2")
pad8 = doc.addObject("PartDesign::Pad", "Pad007")
body.addObject(pad8)
pad8.Profile = sketch14
pad8.Type = "TwoLengths"
pad8.setExpression("Length", "Params.pad8_length")
pad8.setExpression("Length2", "Params.pad8_length2")

# Sketch on XY plane
sketch15 = doc.addObject("Sketcher::SketchObject", "Sketch014")
body.addObject(sketch15)
sketch15.AttachmentSupport = (doc.XY_Plane, [""])
sketch15.MapMode = "FlatFace"
sketch15.AttachmentOffset = App.Placement(App.Vector(0, 0, -175), App.Rotation())
sketch15.addGeometry(Part.LineSegment(App.Vector(-300, 250, 0), App.Vector(-300, -250, 0)), False)
sketch15.addGeometry(Part.LineSegment(App.Vector(-300, -250, 0), App.Vector(300, -250, 0)), False)
sketch15.addGeometry(Part.LineSegment(App.Vector(300, -250, 0), App.Vector(300, 250, 0)), False)
sketch15.addGeometry(Part.LineSegment(App.Vector(300, 250, 0), App.Vector(-300, 250, 0)), False)
sketch15.addConstraint(Sketcher.Constraint("Coincident", 0, 2, 1, 1))
sketch15.addConstraint(Sketcher.Constraint("Coincident", 1, 2, 2, 1))
sketch15.addConstraint(Sketcher.Constraint("Coincident", 2, 2, 3, 1))
sketch15.addConstraint(Sketcher.Constraint("Coincident", 3, 2, 0, 1))
sketch15.addConstraint(Sketcher.Constraint("Vertical", 0))
sketch15.addConstraint(Sketcher.Constraint("Horizontal", 1))
sketch15.addConstraint(Sketcher.Constraint("Vertical", 2))
sketch15.addConstraint(Sketcher.Constraint("Horizontal", 3))
sketch15.addConstraint(Sketcher.Constraint("Symmetric", 0, 2, 2, 2, -1, 1))
sketch15.addConstraint(Sketcher.Constraint("DistanceX", 1, 1, 1, 2, 600.0))
sketch15.addConstraint(Sketcher.Constraint("DistanceY", 0, 2, 0, 1, 500.0))
sketch15.setExpression("Constraints[9]", "Params.sketch15_width")
sketch15.setExpression("Constraints[10]", "Params.sketch15_height")
pocket7 = doc.addObject("PartDesign::Pocket", "Pocket006")
body.addObject(pocket7)
pocket7.Profile = sketch15
pocket7.setExpression("Length", "Params.pocket7_length")

# Sketch on XZ plane
sketch16 = doc.addObject("Sketcher::SketchObject", "Sketch015")
body.addObject(sketch16)
sketch16.AttachmentSupport = (doc.XZ_Plane, [""])
sketch16.MapMode = "FlatFace"
sketch16.AttachmentOffset = App.Placement(App.Vector(0, 0, 252), App.Rotation())
sketch16.addGeometry(Part.LineSegment(App.Vector(-309, 69, 0), App.Vector(-309, -69, 0)), False)
sketch16.addGeometry(Part.LineSegment(App.Vector(-309, -69, 0), App.Vector(309, -69, 0)), False)
sketch16.addGeometry(Part.LineSegment(App.Vector(309, -69, 0), App.Vector(309, 69, 0)), False)
sketch16.addGeometry(Part.LineSegment(App.Vector(309, 69, 0), App.Vector(-309, 69, 0)), False)
sketch16.addConstraint(Sketcher.Constraint("Coincident", 0, 2, 1, 1))
sketch16.addConstraint(Sketcher.Constraint("Coincident", 1, 2, 2, 1))
sketch16.addConstraint(Sketcher.Constraint("Coincident", 2, 2, 3, 1))
sketch16.addConstraint(Sketcher.Constraint("Coincident", 3, 2, 0, 1))
sketch16.addConstraint(Sketcher.Constraint("Vertical", 0))
sketch16.addConstraint(Sketcher.Constraint("Horizontal", 1))
sketch16.addConstraint(Sketcher.Constraint("Vertical", 2))
sketch16.addConstraint(Sketcher.Constraint("Horizontal", 3))
sketch16.addConstraint(Sketcher.Constraint("Symmetric", 0, 2, 2, 2, -1, 1))
sketch16.addConstraint(Sketcher.Constraint("DistanceX", 1, 1, 1, 2, 618.0))
sketch16.addConstraint(Sketcher.Constraint("DistanceY", 0, 2, 0, 1, 137.777546))
sketch16.setExpression("Constraints[9]", "Params.sketch16_width")
pad9 = doc.addObject("PartDesign::Pad", "Pad008")
body.addObject(pad9)
pad9.Profile = sketch16
pad9.setExpression("Length", "Params.pad9_length")

doc.recompute()
